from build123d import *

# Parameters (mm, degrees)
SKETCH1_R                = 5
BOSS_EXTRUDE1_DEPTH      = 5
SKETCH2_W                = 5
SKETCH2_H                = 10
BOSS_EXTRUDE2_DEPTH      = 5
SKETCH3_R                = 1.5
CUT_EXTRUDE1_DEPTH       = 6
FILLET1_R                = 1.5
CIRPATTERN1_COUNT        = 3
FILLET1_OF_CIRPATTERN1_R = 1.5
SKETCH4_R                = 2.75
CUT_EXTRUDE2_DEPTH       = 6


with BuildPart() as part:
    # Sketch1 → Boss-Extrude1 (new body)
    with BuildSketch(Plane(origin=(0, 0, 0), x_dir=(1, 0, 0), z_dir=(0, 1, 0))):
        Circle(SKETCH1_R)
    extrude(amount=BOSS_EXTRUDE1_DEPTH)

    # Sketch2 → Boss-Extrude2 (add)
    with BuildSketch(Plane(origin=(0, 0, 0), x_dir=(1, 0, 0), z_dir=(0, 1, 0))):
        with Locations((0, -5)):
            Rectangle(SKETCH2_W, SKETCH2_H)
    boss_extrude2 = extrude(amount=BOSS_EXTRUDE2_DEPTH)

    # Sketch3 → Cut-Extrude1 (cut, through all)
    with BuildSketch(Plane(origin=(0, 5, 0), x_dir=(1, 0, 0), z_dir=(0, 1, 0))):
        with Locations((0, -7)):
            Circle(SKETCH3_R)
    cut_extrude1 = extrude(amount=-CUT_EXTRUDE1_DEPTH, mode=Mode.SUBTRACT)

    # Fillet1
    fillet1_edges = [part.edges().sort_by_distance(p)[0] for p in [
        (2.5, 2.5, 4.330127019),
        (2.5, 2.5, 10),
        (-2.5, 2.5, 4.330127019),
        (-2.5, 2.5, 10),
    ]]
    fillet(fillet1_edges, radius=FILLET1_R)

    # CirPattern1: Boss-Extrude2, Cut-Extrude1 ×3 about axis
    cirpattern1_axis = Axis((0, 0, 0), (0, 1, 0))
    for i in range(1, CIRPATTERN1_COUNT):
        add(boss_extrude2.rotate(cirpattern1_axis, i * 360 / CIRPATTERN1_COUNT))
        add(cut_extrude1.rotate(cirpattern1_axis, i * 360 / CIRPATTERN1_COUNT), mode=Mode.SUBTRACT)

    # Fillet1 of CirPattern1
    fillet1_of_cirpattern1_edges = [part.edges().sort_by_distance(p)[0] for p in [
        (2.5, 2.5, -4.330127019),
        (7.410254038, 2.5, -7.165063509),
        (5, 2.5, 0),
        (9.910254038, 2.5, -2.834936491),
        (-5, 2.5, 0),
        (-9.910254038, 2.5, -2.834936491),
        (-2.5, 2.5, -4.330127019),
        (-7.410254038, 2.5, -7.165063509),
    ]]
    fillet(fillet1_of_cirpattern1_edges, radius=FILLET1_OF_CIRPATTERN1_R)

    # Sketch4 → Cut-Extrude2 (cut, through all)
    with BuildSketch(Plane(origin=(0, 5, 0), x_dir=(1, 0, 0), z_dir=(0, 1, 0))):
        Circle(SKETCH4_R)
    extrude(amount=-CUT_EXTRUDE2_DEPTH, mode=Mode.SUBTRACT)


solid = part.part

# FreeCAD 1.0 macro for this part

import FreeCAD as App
import Part
import Sketcher
from FreeCAD import Vector
Q = App.Units.Quantity


def edges_at(feature, points):
    """Names of the edges that pass closest to the given points."""
    edges = feature.Shape.Edges
    near = lambda p: min(range(len(edges)), key=lambda i: edges[i].distToShape(Part.Vertex(*p))[0])
    return sorted({f"Edge{near(p) + 1}" for p in points})


def add_polygon(sketch, points):
    """Adds a closed chain of lines whose ends are joined by coincident constraints."""
    first, n = sketch.GeometryCount, len(points)
    for a, b in zip(points, points[1:] + points[:1]):
        sketch.addGeometry(Part.LineSegment(App.Vector(*a, 0), App.Vector(*b, 0)), False)
    for i in range(n):
        sketch.addConstraint(Sketcher.Constraint("Coincident", first + i, 2, first + (i + 1) % n, 1))

doc = App.newDocument("Part")
body = doc.addObject("PartDesign::Body", "Body")

sketch1 = body.newObject("Sketcher::SketchObject", "Sketch")
sketch1.AttachmentSupport = (doc.getObject("XZ_Plane"), [""])
sketch1.MapMode = "FlatFace"
sketch1.addGeometry(Part.Circle(Vector(0, 0, 0), Vector(0, 0, 1), 5), False)
sketch1.addConstraint(Sketcher.Constraint("Coincident", 0, 3, -1, 1))
sketch1.addConstraint(Sketcher.Constraint("Diameter", 0, Q("10 mm")))
pad1 = body.newObject("PartDesign::Pad", "Pad")
pad1.Profile = sketch1
pad1.Length = 5
pad1.Reversed = True

sketch2 = body.newObject("Sketcher::SketchObject", "Sketch001")
sketch2.AttachmentSupport = (doc.getObject("XZ_Plane"), [""])
sketch2.MapMode = "FlatFace"
add_polygon(sketch2, [(-2, 0), (-2, 10), (2, 10), (2, 0)])
sketch2.addConstraint(Sketcher.Constraint("Vertical", 0))
sketch2.addConstraint(Sketcher.Constraint("Horizontal", 1))
sketch2.addConstraint(Sketcher.Constraint("Vertical", 2))
sketch2.addConstraint(Sketcher.Constraint("Horizontal", 3))
sketch2.addConstraint(Sketcher.Constraint("Symmetric", 2, 2, 3, 2, -1, 1))
sketch2.addConstraint(Sketcher.Constraint("DistanceX", 1, 1, 1, 2, Q("5 mm")))
sketch2.addConstraint(Sketcher.Constraint("DistanceY", 0, 1, 0, 2, Q("10 mm")))
pad2 = body.newObject("PartDesign::Pad", "Pad001")
pad2.Profile = sketch2
pad2.Length = 5
pad2.Reversed = True

sketch3 = body.newObject("Sketcher::SketchObject", "Sketch002")
sketch3.AttachmentSupport = (doc.getObject("XZ_Plane"), [""])
sketch3.MapMode = "FlatFace"
sketch3.AttachmentOffset = App.Placement(Vector(0, 0, -5), App.Rotation())
sketch3.addGeometry(Part.Circle(Vector(0, 7, 0), Vector(0, 0, 1), 1.5), False)
sketch3.addConstraint(Sketcher.Constraint("PointOnObject", 0, 3, -2))
sketch3.addConstraint(Sketcher.Constraint("Diameter", 0, Q("3 mm")))
sketch3.addConstraint(Sketcher.Constraint("DistanceY", -1, 1, 0, 3, Q("7 mm")))
pocket1 = body.newObject("PartDesign::Pocket", "Pocket")
pocket1.Profile = sketch3
pocket1.Type = "ThroughAll"
pocket1.Reversed = True
doc.recompute()

fillet = body.newObject("PartDesign::Fillet", "Fillet")
fillet.Base = (pocket1, edges_at(pocket1, [
    (2.5, 2.5, 4.33),
    (2.5, 2.5, 10),
    (-2.5, 2.5, 4.33),
    (-2.5, 2.5, 10),
]))
fillet.Radius = 1.5
doc.recompute()

polarpattern = body.newObject("PartDesign::PolarPattern", "PolarPattern")
polarpattern.Originals = [pad2, pocket1]
polarpattern.Axis = (doc.getObject("Y_Axis"), [""])
polarpattern.Angle = 360
polarpattern.Occurrences = 3
body.Tip = polarpattern
doc.recompute()

fillet2 = body.newObject("PartDesign::Fillet", "Fillet001")
fillet2.Base = (polarpattern, edges_at(polarpattern, [
    (2.5, 2.5, -4.33),
    (7.41, 2.5, -7.165),
    (5, 2.5, 0),
    (9.91, 2.5, -2.835),
    (-5, 2.5, 0),
    (-9.91, 2.5, -2.835),
    (-2.5, 2.5, -4.33),
    (-7.41, 2.5, -7.165),
]))
fillet2.Radius = 1.5

sketch4 = body.newObject("Sketcher::SketchObject", "Sketch003")
sketch4.AttachmentSupport = (doc.getObject("XZ_Plane"), [""])
sketch4.MapMode = "FlatFace"
sketch4.AttachmentOffset = App.Placement(Vector(0, 0, -5), App.Rotation())
sketch4.addGeometry(Part.Circle(Vector(0, 0, 0), Vector(0, 0, 1), 2.8), False)
sketch4.addConstraint(Sketcher.Constraint("Coincident", 0, 3, -1, 1))
sketch4.addConstraint(Sketcher.Constraint("Diameter", 0, Q("5.5 mm")))
pocket2 = body.newObject("PartDesign::Pocket", "Pocket001")
pocket2.Profile = sketch4
pocket2.Type = "ThroughAll"
pocket2.Reversed = True

doc.recompute()
